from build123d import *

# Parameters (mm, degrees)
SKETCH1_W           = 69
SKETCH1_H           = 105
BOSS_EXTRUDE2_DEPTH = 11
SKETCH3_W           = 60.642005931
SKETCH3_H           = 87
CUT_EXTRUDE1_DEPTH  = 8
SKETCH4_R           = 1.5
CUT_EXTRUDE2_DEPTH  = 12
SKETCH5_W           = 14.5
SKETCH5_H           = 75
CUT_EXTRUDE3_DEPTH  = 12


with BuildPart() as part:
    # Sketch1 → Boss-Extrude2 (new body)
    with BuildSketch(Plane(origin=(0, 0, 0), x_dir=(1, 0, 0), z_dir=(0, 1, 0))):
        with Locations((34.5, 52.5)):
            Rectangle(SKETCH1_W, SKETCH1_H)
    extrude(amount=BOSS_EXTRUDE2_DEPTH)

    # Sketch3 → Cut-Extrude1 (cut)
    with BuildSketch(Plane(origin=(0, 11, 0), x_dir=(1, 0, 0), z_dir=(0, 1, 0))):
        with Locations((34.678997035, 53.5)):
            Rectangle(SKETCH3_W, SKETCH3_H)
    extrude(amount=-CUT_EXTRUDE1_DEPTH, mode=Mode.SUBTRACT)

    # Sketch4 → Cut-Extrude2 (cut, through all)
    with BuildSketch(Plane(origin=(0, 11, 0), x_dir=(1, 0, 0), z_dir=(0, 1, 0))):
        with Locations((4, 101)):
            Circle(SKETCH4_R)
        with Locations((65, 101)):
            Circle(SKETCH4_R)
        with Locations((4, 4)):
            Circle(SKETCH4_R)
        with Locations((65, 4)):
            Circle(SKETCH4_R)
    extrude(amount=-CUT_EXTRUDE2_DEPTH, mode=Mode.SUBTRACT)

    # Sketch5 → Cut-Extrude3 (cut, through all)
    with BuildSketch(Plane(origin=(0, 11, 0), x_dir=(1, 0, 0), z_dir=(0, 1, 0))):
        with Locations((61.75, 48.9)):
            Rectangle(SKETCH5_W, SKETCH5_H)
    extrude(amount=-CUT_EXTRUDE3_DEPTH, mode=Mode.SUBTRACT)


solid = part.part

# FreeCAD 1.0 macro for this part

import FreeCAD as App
import Part
import Sketcher
from FreeCAD import Vector
Q = App.Units.Quantity

doc = App.newDocument("Part")
body = doc.addObject("PartDesign::Body", "Body")

# Sketch on XZ plane
sketch1 = doc.addObject("Sketcher::SketchObject", "Sketch")
body.addObject(sketch1)
sketch1.AttachmentSupport = (doc.XZ_Plane, [""])
sketch1.MapMode = "FlatFace"
sketch1.addGeometry([
    Part.LineSegment(Vector(0, -105, 0), Vector(0, 0, 0)),
    Part.LineSegment(Vector(0, 0, 0), Vector(69, 0, 0)),
    Part.LineSegment(Vector(69, 0, 0), Vector(69, -105, 0)),
    Part.LineSegment(Vector(69, -105, 0), Vector(0, -105, 0)),
], False)
sketch1.addConstraint([
    Sketcher.Constraint("Coincident", 0, 2, 1, 1),
    Sketcher.Constraint("Coincident", 1, 2, 2, 1),
    Sketcher.Constraint("Coincident", 2, 2, 3, 1),
    Sketcher.Constraint("Coincident", 3, 2, 0, 1),
    Sketcher.Constraint("Vertical", 0),
    Sketcher.Constraint("Horizontal", 1),
    Sketcher.Constraint("Vertical", 2),
    Sketcher.Constraint("Horizontal", 3),
    Sketcher.Constraint("Coincident", 0, 2, -1, 1),
    Sketcher.Constraint("DistanceX", 1, 1, 1, 2, Q("69 mm")),
    Sketcher.Constraint("DistanceY", 0, 1, 0, 2, Q("105 mm")),
])
pad1 = doc.addObject("PartDesign::Pad", "Pad")
body.addObject(pad1)
pad1.Profile = sketch1
pad1.Length = 11
pad1.Reversed = True

# Sketch on XZ plane
sketch2 = doc.addObject("Sketcher::SketchObject", "Sketch001")
body.addObject(sketch2)
sketch2.AttachmentSupport = (doc.XZ_Plane, [""])
sketch2.MapMode = "FlatFace"
sketch2.AttachmentOffset = App.Placement(Vector(0, 0, -11), App.Rotation())
sketch2.addGeometry([
    Part.LineSegment(Vector(4, -97, 0), Vector(4, -10, 0)),
    Part.LineSegment(Vector(4, -10, 0), Vector(65, -10, 0)),
    Part.LineSegment(Vector(65, -10, 0), Vector(65, -97, 0)),
    Part.LineSegment(Vector(65, -97, 0), Vector(4, -97, 0)),
], False)
sketch2.addConstraint([
    Sketcher.Constraint("Coincident", 0, 2, 1, 1),
    Sketcher.Constraint("Coincident", 1, 2, 2, 1),
    Sketcher.Constraint("Coincident", 2, 2, 3, 1),
    Sketcher.Constraint("Coincident", 3, 2, 0, 1),
    Sketcher.Constraint("Vertical", 0),
    Sketcher.Constraint("Horizontal", 1),
    Sketcher.Constraint("Vertical", 2),
    Sketcher.Constraint("Horizontal", 3),
    Sketcher.Constraint("DistanceY", 0, 1, 0, 2, Q("87 mm")),
    Sketcher.Constraint("DistanceY", 0, 2, -1, 1, Q("10 mm")),
    Sketcher.Constraint("DistanceX", -1, 1, 1, 2, Q("65 mm")),
    Sketcher.Constraint("DistanceX", 1, 1, 1, 2, Q("60.642006 mm")),
])
pocket1 = doc.addObject("PartDesign::Pocket", "Pocket")
body.addObject(pocket1)
pocket1.Profile = sketch2
pocket1.Length = 8
pocket1.Reversed = True

# Sketch on XZ plane
sketch3 = doc.addObject("Sketcher::SketchObject", "Sketch002")
body.addObject(sketch3)
sketch3.AttachmentSupport = (doc.XZ_Plane, [""])
sketch3.MapMode = "FlatFace"
sketch3.AttachmentOffset = App.Placement(Vector(0, 0, -11), App.Rotation())
sketch3.addGeometry([
    Part.Circle(Vector(4, -101, 0), Vector(0, 0, 1), 1.5),
    Part.Circle(Vector(65, -101, 0), Vector(0, 0, 1), 1.5),
    Part.Circle(Vector(4, -4, 0), Vector(0, 0, 1), 1.5),
    Part.Circle(Vector(65, -4, 0), Vector(0, 0, 1), 1.5),
], False)
sketch3.addConstraint([
    Sketcher.Constraint("Equal", 0, 1),
    Sketcher.Constraint("Equal", 1, 2),
    Sketcher.Constraint("Equal", 2, 3),
    Sketcher.Constraint("Horizontal", 0, 3, 1, 3),
    Sketcher.Constraint("Horizontal", 2, 3, 3, 3),
    Sketcher.Constraint("Vertical", 0, 3, 2, 3),
    Sketcher.Constraint("Vertical", 1, 3, 3, 3),
    Sketcher.Constraint("Diameter", 0, Q("3 mm")),
    Sketcher.Constraint("DistanceX", -1, 1, 0, 3, Q("4 mm")),
    Sketcher.Constraint("DistanceY", 0, 3, -1, 1, Q("101 mm")),
    Sketcher.Constraint("DistanceX", -1, 1, 1, 3, Q("65 mm")),
    Sketcher.Constraint("DistanceY", 2, 3, -1, 1, Q("4 mm")),
])
pocket2 = doc.addObject("PartDesign::Pocket", "Pocket001")
body.addObject(pocket2)
pocket2.Profile = sketch3
pocket2.Type = "ThroughAll"
pocket2.Reversed = True

# Sketch on XZ plane
sketch4 = doc.addObject("Sketcher::SketchObject", "Sketch003")
body.addObject(sketch4)
sketch4.AttachmentSupport = (doc.XZ_Plane, [""])
sketch4.MapMode = "FlatFace"
sketch4.AttachmentOffset = App.Placement(Vector(0, 0, -11), App.Rotation())
sketch4.addGeometry([
    Part.LineSegment(Vector(54, -86, 0), Vector(54, -11, 0)),
    Part.LineSegment(Vector(54, -11, 0), Vector(69, -11, 0)),
    Part.LineSegment(Vector(69, -11, 0), Vector(69, -86, 0)),
    Part.LineSegment(Vector(69, -86, 0), Vector(54, -86, 0)),
], False)
sketch4.addConstraint([
    Sketcher.Constraint("Coincident", 0, 2, 1, 1),
    Sketcher.Constraint("Coincident", 1, 2, 2, 1),
    Sketcher.Constraint("Coincident", 2, 2, 3, 1),
    Sketcher.Constraint("Coincident", 3, 2, 0, 1),
    Sketcher.Constraint("Vertical", 0),
    Sketcher.Constraint("Horizontal", 1),
    Sketcher.Constraint("Vertical", 2),
    Sketcher.Constraint("Horizontal", 3),
    Sketcher.Constraint("DistanceY", 0, 1, 0, 2, Q("75 mm")),
    Sketcher.Constraint("DistanceX", 1, 1, 1, 2, Q("14.5 mm")),
    Sketcher.Constraint("DistanceX", -1, 1, 1, 2, Q("69 mm")),
    Sketcher.Constraint("DistanceY", 0, 2, -1, 1, Q("11.4 mm")),
])
pocket3 = doc.addObject("PartDesign::Pocket", "Pocket002")
body.addObject(pocket3)
pocket3.Profile = sketch4
pocket3.Type = "ThroughAll"
pocket3.Reversed = True

doc.recompute()
